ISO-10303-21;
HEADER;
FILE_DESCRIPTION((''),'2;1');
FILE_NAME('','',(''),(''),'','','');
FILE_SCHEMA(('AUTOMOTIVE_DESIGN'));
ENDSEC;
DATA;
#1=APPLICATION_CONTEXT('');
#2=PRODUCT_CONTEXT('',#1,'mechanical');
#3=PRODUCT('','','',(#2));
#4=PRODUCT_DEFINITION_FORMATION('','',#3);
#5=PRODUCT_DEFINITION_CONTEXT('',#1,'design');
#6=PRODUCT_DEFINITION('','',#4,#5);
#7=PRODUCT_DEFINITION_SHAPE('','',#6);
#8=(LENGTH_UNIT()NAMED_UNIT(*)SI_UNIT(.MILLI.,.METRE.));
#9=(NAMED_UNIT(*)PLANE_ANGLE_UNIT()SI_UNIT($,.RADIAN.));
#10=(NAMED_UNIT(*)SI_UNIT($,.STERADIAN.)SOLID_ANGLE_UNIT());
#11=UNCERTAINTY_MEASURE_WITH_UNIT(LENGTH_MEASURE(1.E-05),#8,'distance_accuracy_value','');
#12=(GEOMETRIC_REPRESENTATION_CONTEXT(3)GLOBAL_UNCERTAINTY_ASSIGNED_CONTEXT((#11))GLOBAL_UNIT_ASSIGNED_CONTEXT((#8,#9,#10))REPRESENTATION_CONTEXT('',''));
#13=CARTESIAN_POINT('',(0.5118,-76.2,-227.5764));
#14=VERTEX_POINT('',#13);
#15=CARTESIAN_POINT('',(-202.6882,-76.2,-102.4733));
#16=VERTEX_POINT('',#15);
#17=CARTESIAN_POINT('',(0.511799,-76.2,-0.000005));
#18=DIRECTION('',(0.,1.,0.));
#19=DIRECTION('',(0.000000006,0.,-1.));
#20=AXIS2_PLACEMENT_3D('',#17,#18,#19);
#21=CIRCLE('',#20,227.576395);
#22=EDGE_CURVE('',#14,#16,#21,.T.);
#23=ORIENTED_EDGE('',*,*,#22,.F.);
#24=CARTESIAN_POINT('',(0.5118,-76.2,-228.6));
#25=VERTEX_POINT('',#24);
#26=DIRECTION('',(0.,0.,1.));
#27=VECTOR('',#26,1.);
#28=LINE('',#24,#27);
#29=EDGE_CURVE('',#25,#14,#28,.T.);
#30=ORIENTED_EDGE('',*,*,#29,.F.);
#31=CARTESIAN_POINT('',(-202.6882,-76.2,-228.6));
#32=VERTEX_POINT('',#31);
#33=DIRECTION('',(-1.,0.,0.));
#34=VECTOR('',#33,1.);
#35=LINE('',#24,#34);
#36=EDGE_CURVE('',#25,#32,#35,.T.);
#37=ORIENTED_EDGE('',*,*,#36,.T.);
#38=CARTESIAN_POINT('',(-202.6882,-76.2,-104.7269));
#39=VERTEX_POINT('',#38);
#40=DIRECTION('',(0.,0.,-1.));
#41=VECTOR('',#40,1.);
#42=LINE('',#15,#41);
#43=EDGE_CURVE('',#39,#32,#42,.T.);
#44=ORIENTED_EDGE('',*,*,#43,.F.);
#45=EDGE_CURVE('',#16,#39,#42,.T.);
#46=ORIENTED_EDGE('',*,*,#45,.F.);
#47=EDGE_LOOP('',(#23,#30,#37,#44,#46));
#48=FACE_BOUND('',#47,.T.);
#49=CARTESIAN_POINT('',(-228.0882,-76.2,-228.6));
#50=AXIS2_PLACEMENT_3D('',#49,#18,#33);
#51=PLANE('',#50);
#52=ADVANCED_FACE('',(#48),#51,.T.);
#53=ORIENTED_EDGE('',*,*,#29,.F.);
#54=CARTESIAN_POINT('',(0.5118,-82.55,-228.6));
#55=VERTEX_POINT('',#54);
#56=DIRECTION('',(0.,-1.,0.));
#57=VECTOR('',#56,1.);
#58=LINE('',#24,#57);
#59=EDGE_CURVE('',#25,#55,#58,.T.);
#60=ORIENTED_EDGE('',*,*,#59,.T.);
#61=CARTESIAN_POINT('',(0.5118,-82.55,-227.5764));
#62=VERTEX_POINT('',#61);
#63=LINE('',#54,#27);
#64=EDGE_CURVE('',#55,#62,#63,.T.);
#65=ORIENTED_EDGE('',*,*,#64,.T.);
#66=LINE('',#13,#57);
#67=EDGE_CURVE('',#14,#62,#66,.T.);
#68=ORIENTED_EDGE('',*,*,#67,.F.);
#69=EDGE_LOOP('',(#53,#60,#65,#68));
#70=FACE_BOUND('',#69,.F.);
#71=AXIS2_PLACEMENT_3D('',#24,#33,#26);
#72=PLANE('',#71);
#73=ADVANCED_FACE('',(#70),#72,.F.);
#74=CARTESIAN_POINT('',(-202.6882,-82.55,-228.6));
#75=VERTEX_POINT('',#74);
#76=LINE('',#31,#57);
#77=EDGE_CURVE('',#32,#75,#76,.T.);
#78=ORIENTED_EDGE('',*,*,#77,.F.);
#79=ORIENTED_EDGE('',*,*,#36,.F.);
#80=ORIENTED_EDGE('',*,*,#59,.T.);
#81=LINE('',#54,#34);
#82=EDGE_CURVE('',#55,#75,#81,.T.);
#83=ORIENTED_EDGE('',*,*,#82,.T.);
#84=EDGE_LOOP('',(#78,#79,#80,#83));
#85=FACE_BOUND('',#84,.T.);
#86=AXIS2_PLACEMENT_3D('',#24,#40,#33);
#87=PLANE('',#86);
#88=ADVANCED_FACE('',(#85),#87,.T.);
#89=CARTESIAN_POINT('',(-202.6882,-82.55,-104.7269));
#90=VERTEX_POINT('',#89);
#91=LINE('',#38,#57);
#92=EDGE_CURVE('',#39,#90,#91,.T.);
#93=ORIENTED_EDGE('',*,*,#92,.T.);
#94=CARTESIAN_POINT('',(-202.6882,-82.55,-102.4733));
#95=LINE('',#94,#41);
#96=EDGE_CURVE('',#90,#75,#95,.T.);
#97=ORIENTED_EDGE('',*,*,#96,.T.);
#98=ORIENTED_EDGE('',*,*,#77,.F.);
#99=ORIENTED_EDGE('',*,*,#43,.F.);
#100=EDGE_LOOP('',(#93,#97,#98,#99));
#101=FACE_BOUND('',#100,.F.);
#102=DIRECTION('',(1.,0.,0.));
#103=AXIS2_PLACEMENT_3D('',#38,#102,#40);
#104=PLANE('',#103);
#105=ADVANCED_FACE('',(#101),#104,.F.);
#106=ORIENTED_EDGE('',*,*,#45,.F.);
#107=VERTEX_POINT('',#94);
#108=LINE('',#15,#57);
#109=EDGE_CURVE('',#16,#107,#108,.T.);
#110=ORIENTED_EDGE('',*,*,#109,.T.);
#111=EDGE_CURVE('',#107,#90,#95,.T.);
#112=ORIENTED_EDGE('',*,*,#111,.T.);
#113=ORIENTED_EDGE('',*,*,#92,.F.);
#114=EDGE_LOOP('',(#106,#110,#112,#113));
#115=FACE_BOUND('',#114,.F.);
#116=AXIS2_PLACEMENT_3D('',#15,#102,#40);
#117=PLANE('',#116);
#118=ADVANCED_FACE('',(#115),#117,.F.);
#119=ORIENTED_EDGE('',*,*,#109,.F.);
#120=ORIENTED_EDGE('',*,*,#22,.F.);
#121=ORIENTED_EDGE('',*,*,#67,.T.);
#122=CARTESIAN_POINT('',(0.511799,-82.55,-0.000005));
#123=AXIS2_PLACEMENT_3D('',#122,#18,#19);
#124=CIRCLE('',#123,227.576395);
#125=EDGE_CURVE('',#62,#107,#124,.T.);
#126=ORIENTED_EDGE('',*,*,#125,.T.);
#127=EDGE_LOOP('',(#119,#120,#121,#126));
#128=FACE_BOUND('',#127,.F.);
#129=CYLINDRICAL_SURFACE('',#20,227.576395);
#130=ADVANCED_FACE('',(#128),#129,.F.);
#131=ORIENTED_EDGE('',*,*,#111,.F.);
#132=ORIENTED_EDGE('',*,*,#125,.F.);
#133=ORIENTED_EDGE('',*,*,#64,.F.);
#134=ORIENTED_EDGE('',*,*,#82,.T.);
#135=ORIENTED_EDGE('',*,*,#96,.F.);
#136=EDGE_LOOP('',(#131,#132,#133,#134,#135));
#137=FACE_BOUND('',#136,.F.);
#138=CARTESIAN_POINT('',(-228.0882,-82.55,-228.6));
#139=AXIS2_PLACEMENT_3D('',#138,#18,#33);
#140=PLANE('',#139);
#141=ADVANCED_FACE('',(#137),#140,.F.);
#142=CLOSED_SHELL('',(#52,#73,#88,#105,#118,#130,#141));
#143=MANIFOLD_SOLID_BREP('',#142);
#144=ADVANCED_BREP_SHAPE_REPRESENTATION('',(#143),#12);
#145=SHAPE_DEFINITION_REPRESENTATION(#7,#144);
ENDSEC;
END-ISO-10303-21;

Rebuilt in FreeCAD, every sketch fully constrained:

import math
import FreeCAD as App
import Part
import Sketcher
from FreeCAD import Vector
Q = App.Units.Quantity

doc = App.newDocument("Part")
body = doc.addObject("PartDesign::Body", "Body")

sketch1 = body.newObject("Sketcher::SketchObject", "Sketch")
sketch1.AttachmentSupport = (doc.getObject("XZ_Plane"), [""])
sketch1.MapMode = "FlatFace"
sketch1.AttachmentOffset = App.Placement(Vector(0, 0, 3 * 25.4), App.Rotation())
sketch1.addGeometry(Part.LineSegment(Vector(0.5, -227.6, 0), Vector(0.5, -228.6, 0)), False)
sketch1.addGeometry(Part.LineSegment(Vector(0.5, -228.6, 0), Vector(-202.7, -228.6, 0)), False)
sketch1.addGeometry(Part.LineSegment(Vector(-202.7, -228.6, 0), Vector(-202.7, -102.5, 0)), False)
sketch1.addGeometry(Part.ArcOfCircle(Part.Circle(Vector(0.5, 0, 0), Vector(0, 0, 1), 227.6), math.radians(-153), math.radians(-90)), False)
sketch1.addConstraint(Sketcher.Constraint("Coincident", 0, 2, 1, 1))
sketch1.addConstraint(Sketcher.Constraint("Coincident", 1, 2, 2, 1))
sketch1.addConstraint(Sketcher.Constraint("Coincident", 2, 2, 3, 1))
sketch1.addConstraint(Sketcher.Constraint("Coincident", 3, 2, 0, 1))
sketch1.addConstraint(Sketcher.Constraint("Vertical", 0))
sketch1.addConstraint(Sketcher.Constraint("Horizontal", 1))
sketch1.addConstraint(Sketcher.Constraint("Vertical", 2))
sketch1.addConstraint(Sketcher.Constraint("PointOnObject", 3, 3, -1))
sketch1.addConstraint(Sketcher.Constraint("Vertical", 3, 3, 0, 2))
sketch1.addConstraint(Sketcher.Constraint("DistanceX", 1, 2, 1, 1, Q("8 in")))
sketch1.addConstraint(Sketcher.Constraint("DistanceY", 0, 2, -1, 1, Q("9 in")))
sketch1.addConstraint(Sketcher.Constraint("Radius", 3, Q("8.9597 in")))
sketch1.addConstraint(Sketcher.Constraint("DistanceX", -1, 1, 3, 3, Q("0.5118 mm")))
pad1 = body.newObject("PartDesign::Pad", "Pad")
pad1.Profile = sketch1
pad1.Length = Q("0.25 in")

doc.recompute()
